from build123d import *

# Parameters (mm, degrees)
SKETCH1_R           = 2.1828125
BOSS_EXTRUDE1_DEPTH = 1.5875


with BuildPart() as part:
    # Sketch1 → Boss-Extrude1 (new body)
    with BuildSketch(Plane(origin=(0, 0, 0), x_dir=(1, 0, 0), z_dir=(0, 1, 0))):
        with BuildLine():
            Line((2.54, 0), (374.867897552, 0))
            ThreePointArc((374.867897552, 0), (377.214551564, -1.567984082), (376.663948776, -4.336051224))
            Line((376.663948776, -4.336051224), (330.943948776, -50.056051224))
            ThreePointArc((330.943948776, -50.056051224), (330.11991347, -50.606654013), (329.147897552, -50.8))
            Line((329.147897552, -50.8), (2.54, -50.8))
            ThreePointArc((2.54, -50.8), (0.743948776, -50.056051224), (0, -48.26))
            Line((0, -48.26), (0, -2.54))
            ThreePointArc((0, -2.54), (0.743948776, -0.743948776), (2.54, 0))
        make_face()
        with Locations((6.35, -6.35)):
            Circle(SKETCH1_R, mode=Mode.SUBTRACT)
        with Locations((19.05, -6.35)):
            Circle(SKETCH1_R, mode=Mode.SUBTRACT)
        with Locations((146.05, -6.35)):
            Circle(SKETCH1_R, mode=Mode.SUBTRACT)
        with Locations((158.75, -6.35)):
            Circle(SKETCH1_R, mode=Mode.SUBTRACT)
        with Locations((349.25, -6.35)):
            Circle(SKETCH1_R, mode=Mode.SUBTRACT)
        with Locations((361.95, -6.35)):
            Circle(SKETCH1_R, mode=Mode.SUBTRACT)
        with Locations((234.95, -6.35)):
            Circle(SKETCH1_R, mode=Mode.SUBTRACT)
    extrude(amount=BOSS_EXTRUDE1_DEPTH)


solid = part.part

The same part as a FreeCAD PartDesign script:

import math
import FreeCAD as App
import Part
import Sketcher
from FreeCAD import Vector
Q = App.Units.Quantity

doc = App.newDocument("Part")
body = doc.addObject("PartDesign::Body", "Body")

# Sketch on XZ plane
sketch1 = body.newObject("Sketcher::SketchObject", "Sketch")
sketch1.AttachmentSupport = (doc.getObject("XZ_Plane"), [""])
sketch1.MapMode = "FlatFace"
sketch1.addGeometry([
    Part.LineSegment(Vector(374.867898, 0, 0), Vector(2.54, 0, 0)),  # 0
    Part.ArcOfCircle(Part.Circle(Vector(2.54, 2.54, 0), Vector(0, 0, 1), 2.54), math.radians(-180), math.radians(-90)),  # 1
    Part.LineSegment(Vector(0, 2.54, 0), Vector(0, 48.26, 0)),  # 2
    Part.ArcOfCircle(Part.Circle(Vector(2.54, 48.26, 0), Vector(0, 0, 1), 2.54), math.radians(90), math.radians(180)),  # 3
    Part.LineSegment(Vector(2.54, 50.8, 0), Vector(329.147898, 50.8, 0)),  # 4
    Part.ArcOfCircle(Part.Circle(Vector(329.147898, 48.26, 0), Vector(0, 0, 1), 2.54), math.radians(45), math.radians(90)),  # 5
    Part.LineSegment(Vector(330.943949, 50.056051, 0), Vector(376.663949, 4.336051, 0)),  # 6
    Part.ArcOfCircle(Part.Circle(Vector(374.867898, 2.54, 0), Vector(0, 0, 1), 2.54), math.radians(-90), math.radians(45)),  # 7
    Part.Circle(Vector(361.95, 6.35, 0), Vector(0, 0, 1), 2.182812),  # 8
    Part.Circle(Vector(349.25, 6.35, 0), Vector(0, 0, 1), 2.182812),  # 9
    Part.Circle(Vector(234.95, 6.35, 0), Vector(0, 0, 1), 2.182812),  # 10
    Part.Circle(Vector(158.75, 6.35, 0), Vector(0, 0, 1), 2.182812),  # 11
    Part.Circle(Vector(146.05, 6.35, 0), Vector(0, 0, 1), 2.182812),  # 12
    Part.Circle(Vector(19.05, 6.35, 0), Vector(0, 0, 1), 2.182812),  # 13
    Part.Circle(Vector(6.35, 6.35, 0), Vector(0, 0, 1), 2.182812),  # 14
], False)
sketch1.addConstraint([
    Sketcher.Constraint("Tangent", 0, 2, 1, 2),
    Sketcher.Constraint("Tangent", 1, 1, 2, 1),
    Sketcher.Constraint("Tangent", 2, 2, 3, 2),
    Sketcher.Constraint("Tangent", 3, 1, 4, 1),
    Sketcher.Constraint("Tangent", 4, 2, 5, 2),
    Sketcher.Constraint("Tangent", 5, 1, 6, 1),
    Sketcher.Constraint("Tangent", 6, 2, 7, 2),
    Sketcher.Constraint("Tangent", 7, 1, 0, 1),
    Sketcher.Constraint("Horizontal", 0),
    Sketcher.Constraint("Vertical", 2),
    Sketcher.Constraint("Horizontal", 4),
    Sketcher.Constraint("Equal", 1, 3),
    Sketcher.Constraint("Equal", 3, 5),
    Sketcher.Constraint("Equal", 5, 7),
    Sketcher.Constraint("Equal", 8, 9),
    Sketcher.Constraint("Equal", 9, 10),
    Sketcher.Constraint("Equal", 10, 11),
    Sketcher.Constraint("Equal", 11, 12),
    Sketcher.Constraint("Equal", 12, 13),
    Sketcher.Constraint("Equal", 13, 14),
    Sketcher.Constraint("PointOnObject", 0, 2, -1),
    Sketcher.Constraint("PointOnObject", 1, 1, -2),
    Sketcher.Constraint("Horizontal", 8, 3, 9, 3),
    Sketcher.Constraint("Horizontal", 9, 3, 10, 3),
    Sketcher.Constraint("Horizontal", 10, 3, 11, 3),
    Sketcher.Constraint("Horizontal", 11, 3, 12, 3),
    Sketcher.Constraint("Horizontal", 12, 3, 13, 3),
    Sketcher.Constraint("Horizontal", 13, 3, 14, 3),
    Sketcher.Constraint("Radius", 1, Q("0.1 in")),
    Sketcher.Constraint("Diameter", 8, Q("0.171875 in")),
    Sketcher.Constraint("DistanceY", 2, 1, 2, 2, Q("1.8 in")),
    Sketcher.Constraint("Angle", 6, Q("-45 deg")),
    Sketcher.Constraint("DistanceX", 10, 3, 8, 3, Q("5 in")),
    Sketcher.Constraint("DistanceX", 11, 3, 10, 3, Q("3 in")),
    Sketcher.Constraint("DistanceX", 13, 3, 12, 3, Q("5 in")),
    Sketcher.Constraint("DistanceX", 14, 3, 11, 3, Q("6 in")),
    Sketcher.Constraint("DistanceX", 9, 3, 8, 3, Q("0.5 in")),
    Sketcher.Constraint("DistanceX", 12, 3, 11, 3, Q("0.5 in")),
    Sketcher.Constraint("DistanceX", -1, 1, 8, 3, Q("14.25 in")),
    Sketcher.Constraint("DistanceY", -1, 1, 8, 3, Q("0.25 in")),
    Sketcher.Constraint("DistanceX", 0, 2, 0, 1, Q("372.327898 mm")),
])
pad1 = body.newObject("PartDesign::Pad", "Pad")
pad1.Profile = sketch1
pad1.Length = Q("0.0625 in")
pad1.Reversed = True

doc.recompute()
